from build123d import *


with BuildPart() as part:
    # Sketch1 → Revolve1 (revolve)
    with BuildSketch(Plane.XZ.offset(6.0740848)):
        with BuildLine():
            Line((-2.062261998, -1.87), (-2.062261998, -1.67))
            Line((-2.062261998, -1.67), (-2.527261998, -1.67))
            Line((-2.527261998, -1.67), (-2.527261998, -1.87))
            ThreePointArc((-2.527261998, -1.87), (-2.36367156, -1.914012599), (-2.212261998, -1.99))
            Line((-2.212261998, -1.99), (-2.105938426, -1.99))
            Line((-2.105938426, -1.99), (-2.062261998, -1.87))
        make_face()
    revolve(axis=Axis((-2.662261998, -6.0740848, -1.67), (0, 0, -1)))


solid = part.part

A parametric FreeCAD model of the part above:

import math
import FreeCAD as App
import Part
import Sketcher
from FreeCAD import Vector
Q = App.Units.Quantity

doc = App.newDocument("Part")
body = doc.addObject("PartDesign::Body", "Body")

# Sketch on XZ plane
sketch1 = body.newObject("Sketcher::SketchObject", "Sketch")
sketch1.AttachmentSupport = (doc.getObject("XZ_Plane"), [""])
sketch1.MapMode = "FlatFace"
sketch1.AttachmentOffset = App.Placement(Vector(0, 0, 6.074085), App.Rotation())
sketch1.addGeometry([
    Part.LineSegment(Vector(-2.06, -1.87, 0), Vector(-2.06, -1.67, 0)),  # 0
    Part.LineSegment(Vector(-2.06, -1.67, 0), Vector(-2.53, -1.67, 0)),  # 1
    Part.LineSegment(Vector(-2.53, -1.67, 0), Vector(-2.53, -1.87, 0)),  # 2
    Part.ArcOfCircle(Part.Circle(Vector(-2.66, -2.7, 0), Vector(0, 0, 1), 0.84), math.radians(58), math.radians(81)),  # 3
    Part.LineSegment(Vector(-2.21, -1.99, 0), Vector(-2.11, -1.99, 0)),  # 4
    Part.LineSegment(Vector(-2.11, -1.99, 0), Vector(-2.06, -1.87, 0)),  # 5
], False)
sketch1.addGeometry(Part.LineSegment(Vector(-2.66, -1.67, 0), Vector(-2.66, -2.7, 0)), True)  # axis
sketch1.addConstraint([
    Sketcher.Constraint("Coincident", 0, 2, 1, 1),
    Sketcher.Constraint("Coincident", 1, 2, 2, 1),
    Sketcher.Constraint("Coincident", 2, 2, 3, 2),
    Sketcher.Constraint("Coincident", 3, 1, 4, 1),
    Sketcher.Constraint("Coincident", 4, 2, 5, 1),
    Sketcher.Constraint("Coincident", 5, 2, 0, 1),
    Sketcher.Constraint("Vertical", 0),
    Sketcher.Constraint("Horizontal", 1),
    Sketcher.Constraint("Vertical", 2),
    Sketcher.Constraint("Horizontal", 4),
    Sketcher.Constraint("Vertical", 6),
    Sketcher.Constraint("Coincident", 6, 2, 3, 3),
    Sketcher.Constraint("Horizontal", 2, 2, 5, 2),
    Sketcher.Constraint("Horizontal", 1, 2, 6, 1),
    Sketcher.Constraint("Angle", 5, Q("70 deg")),
    Sketcher.Constraint("DistanceY", 0, 1, 0, 2, Q("0.2 mm")),
    Sketcher.Constraint("DistanceX", 3, 3, 0, 2, Q("0.6 mm")),
    Sketcher.Constraint("DistanceX", 1, 2, 1, 1, Q("0.465 mm")),
    Sketcher.Constraint("DistanceY", 0, 2, -1, 1, Q("1.67 mm")),
    Sketcher.Constraint("DistanceY", 3, 1, -1, 1, Q("1.99 mm")),
    Sketcher.Constraint("Radius", 3, Q("0.838748 mm")),
    Sketcher.Constraint("DistanceX", 0, 2, -1, 1, Q("2.062262 mm")),
])
revolution = body.newObject("PartDesign::Revolution", "Revolution")
revolution.Profile = sketch1
revolution.ReferenceAxis = (sketch1, ["Axis0"])
revolution.Angle = 360

doc.recompute()
